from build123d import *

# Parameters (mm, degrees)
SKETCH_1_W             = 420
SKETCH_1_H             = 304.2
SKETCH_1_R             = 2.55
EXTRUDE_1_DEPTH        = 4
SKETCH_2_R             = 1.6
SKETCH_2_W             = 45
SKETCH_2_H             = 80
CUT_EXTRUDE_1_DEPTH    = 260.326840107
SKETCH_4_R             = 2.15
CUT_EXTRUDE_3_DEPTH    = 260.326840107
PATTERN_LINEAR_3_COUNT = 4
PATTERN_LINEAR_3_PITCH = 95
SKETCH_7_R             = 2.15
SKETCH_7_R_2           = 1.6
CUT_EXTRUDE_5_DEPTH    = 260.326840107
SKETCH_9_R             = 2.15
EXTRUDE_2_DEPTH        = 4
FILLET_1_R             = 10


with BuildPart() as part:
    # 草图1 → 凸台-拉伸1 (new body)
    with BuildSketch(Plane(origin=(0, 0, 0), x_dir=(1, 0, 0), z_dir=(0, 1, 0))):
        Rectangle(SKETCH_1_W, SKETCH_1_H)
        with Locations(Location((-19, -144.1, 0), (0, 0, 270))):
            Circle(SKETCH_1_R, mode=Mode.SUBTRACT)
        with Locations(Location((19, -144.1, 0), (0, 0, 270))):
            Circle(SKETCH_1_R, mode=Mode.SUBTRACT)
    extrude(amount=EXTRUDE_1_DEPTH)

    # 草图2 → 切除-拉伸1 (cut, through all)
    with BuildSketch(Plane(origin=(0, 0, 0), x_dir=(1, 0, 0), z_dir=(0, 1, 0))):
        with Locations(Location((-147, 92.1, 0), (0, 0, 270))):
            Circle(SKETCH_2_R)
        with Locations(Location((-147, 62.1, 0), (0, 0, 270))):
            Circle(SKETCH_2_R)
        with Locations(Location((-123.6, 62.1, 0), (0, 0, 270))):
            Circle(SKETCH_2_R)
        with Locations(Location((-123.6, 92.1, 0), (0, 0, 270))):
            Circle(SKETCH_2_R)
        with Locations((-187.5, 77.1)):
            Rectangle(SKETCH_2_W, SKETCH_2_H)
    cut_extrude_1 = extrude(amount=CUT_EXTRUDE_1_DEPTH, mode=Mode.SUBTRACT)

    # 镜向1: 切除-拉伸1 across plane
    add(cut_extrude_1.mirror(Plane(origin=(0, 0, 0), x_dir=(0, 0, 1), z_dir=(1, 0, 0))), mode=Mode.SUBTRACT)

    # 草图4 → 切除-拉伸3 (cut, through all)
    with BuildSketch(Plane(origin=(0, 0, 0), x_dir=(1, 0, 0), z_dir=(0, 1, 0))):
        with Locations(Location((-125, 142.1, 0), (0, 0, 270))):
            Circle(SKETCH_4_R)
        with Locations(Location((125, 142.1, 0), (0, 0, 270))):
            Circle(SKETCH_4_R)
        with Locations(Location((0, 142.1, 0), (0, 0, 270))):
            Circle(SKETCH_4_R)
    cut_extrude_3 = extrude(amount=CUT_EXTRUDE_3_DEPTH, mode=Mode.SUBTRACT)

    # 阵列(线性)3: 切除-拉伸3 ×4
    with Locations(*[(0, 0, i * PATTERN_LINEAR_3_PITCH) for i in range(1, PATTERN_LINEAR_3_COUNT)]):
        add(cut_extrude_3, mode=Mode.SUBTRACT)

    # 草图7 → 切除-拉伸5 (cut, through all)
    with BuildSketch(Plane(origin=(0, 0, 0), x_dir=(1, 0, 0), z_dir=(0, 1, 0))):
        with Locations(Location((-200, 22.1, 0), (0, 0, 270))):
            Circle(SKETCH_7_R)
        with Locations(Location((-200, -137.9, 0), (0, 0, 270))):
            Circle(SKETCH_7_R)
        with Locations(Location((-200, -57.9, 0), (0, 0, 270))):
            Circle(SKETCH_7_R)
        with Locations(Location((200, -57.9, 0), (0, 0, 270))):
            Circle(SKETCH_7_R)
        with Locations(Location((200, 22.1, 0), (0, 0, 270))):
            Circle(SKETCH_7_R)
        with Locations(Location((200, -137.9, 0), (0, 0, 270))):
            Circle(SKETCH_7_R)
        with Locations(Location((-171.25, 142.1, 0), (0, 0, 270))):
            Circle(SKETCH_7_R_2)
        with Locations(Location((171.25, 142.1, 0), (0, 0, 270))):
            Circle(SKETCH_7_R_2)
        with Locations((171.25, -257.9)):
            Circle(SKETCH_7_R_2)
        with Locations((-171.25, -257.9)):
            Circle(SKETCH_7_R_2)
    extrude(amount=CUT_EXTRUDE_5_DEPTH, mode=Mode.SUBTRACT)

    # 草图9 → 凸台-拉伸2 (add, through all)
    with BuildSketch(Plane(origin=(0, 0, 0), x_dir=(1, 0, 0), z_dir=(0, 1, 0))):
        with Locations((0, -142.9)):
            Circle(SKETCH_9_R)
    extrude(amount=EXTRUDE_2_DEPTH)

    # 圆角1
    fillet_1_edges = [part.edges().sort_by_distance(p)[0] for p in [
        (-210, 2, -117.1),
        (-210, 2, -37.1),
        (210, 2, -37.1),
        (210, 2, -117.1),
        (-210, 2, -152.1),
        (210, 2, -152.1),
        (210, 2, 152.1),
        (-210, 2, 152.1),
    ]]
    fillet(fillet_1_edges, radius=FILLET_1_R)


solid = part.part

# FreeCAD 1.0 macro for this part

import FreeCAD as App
import Part
import Sketcher
from FreeCAD import Vector
Q = App.Units.Quantity


def edges_at(feature, points):
    """Names of the edges that pass closest to the given points."""
    edges = feature.Shape.Edges
    near = lambda p: min(range(len(edges)), key=lambda i: edges[i].distToShape(Part.Vertex(*p))[0])
    return sorted({f"Edge{near(p) + 1}" for p in points})

doc = App.newDocument("Part")
params = doc.addObject("Spreadsheet::Sheet", "Params")
for row, (alias, value) in enumerate([
    ("sketch1_diameter", "5.1 mm"),
    ("sketch1_width", "420 mm"),
    ("sketch1_height", "304.2 mm"),
    ("pad1_length", "4 mm"),
    ("sketch2_diameter", "3.2 mm"),
    ("sketch2_width", "45 mm"),
    ("sketch2_height", "80 mm"),
    ("sketch3_diameter", "4.3 mm"),
    ("linearpattern_pitch", "95 mm"),
    ("sketch4_diameter", "4.3 mm"),
    ("sketch4_diameter2", "3.2 mm"),
    ("sketch5_diameter", "4.3 mm"),
    ("pad2_length", "4 mm"),
    ("fillet_radius", "10 mm"),
], start=1):
    params.set(f"A{row}", alias)
    params.set(f"B{row}", "=" + value)
    params.setAlias(f"B{row}", alias)

body = doc.addObject("PartDesign::Body", "Body")

# Sketch on XZ plane
sketch1 = doc.addObject("Sketcher::SketchObject", "Sketch")
body.addObject(sketch1)
sketch1.AttachmentSupport = (doc.XZ_Plane, [""])
sketch1.MapMode = "FlatFace"
sketch1.addGeometry([
    Part.LineSegment(Vector(-210, -152.1, 0), Vector(-210, 152.1, 0)),  # 0
    Part.LineSegment(Vector(-210, 152.1, 0), Vector(210, 152.1, 0)),  # 1
    Part.LineSegment(Vector(210, 152.1, 0), Vector(210, -152.1, 0)),  # 2
    Part.LineSegment(Vector(210, -152.1, 0), Vector(-210, -152.1, 0)),  # 3
    Part.Circle(Vector(-19, 144.1, 0), Vector(0, 0, 1), 2.5),  # 4
    Part.Circle(Vector(19, 144.1, 0), Vector(0, 0, 1), 2.5),  # 5
], False)
sketch1.addConstraint([
    Sketcher.Constraint("Coincident", 0, 2, 1, 1),
    Sketcher.Constraint("Coincident", 1, 2, 2, 1),
    Sketcher.Constraint("Coincident", 2, 2, 3, 1),
    Sketcher.Constraint("Coincident", 3, 2, 0, 1),
    Sketcher.Constraint("Vertical", 0),
    Sketcher.Constraint("Horizontal", 1),
    Sketcher.Constraint("Vertical", 2),
    Sketcher.Constraint("Horizontal", 3),
    Sketcher.Constraint("Equal", 4, 5),
    Sketcher.Constraint("Symmetric", 0, 2, 2, 2, -1, 1),
    Sketcher.Constraint("Symmetric", 4, 3, 5, 3, -2),
    Sketcher.Constraint("Diameter", 4, Q("5.1 mm")),
    Sketcher.Constraint("DistanceX", 1, 1, 1, 2, Q("420 mm")),
    Sketcher.Constraint("DistanceY", 0, 1, 0, 2, Q("304.2 mm")),
    Sketcher.Constraint("DistanceX", 4, 3, -1, 1, Q("19 mm")),
    Sketcher.Constraint("DistanceY", 4, 3, 0, 2, Q("8 mm")),
])
sketch1.setExpression("Constraints[11]", "Params.sketch1_diameter")
sketch1.setExpression("Constraints[12]", "Params.sketch1_width")
sketch1.setExpression("Constraints[13]", "Params.sketch1_height")
pad1 = doc.addObject("PartDesign::Pad", "Pad")
body.addObject(pad1)
pad1.Profile = sketch1
pad1.setExpression("Length", "Params.pad1_length")
pad1.Reversed = True

# Sketch on XZ plane
sketch2 = doc.addObject("Sketcher::SketchObject", "Sketch001")
body.addObject(sketch2)
sketch2.AttachmentSupport = (doc.XZ_Plane, [""])
sketch2.MapMode = "FlatFace"
sketch2.addGeometry([
    Part.Circle(Vector(-147, -92.1, 0), Vector(0, 0, 1), 1.6),  # 0
    Part.Circle(Vector(-147, -62.1, 0), Vector(0, 0, 1), 1.6),  # 1
    Part.Circle(Vector(-123.6, -62.1, 0), Vector(0, 0, 1), 1.6),  # 2
    Part.Circle(Vector(-123.6, -92.1, 0), Vector(0, 0, 1), 1.6),  # 3
    Part.LineSegment(Vector(-210, -117.1, 0), Vector(-210, -37.1, 0)),  # 4
    Part.LineSegment(Vector(-210, -37.1, 0), Vector(-165, -37.1, 0)),  # 5
    Part.LineSegment(Vector(-165, -37.1, 0), Vector(-165, -117.1, 0)),  # 6
    Part.LineSegment(Vector(-165, -117.1, 0), Vector(-210, -117.1, 0)),  # 7
], False)
sketch2.addConstraint([
    Sketcher.Constraint("Coincident", 4, 2, 5, 1),
    Sketcher.Constraint("Coincident", 5, 2, 6, 1),
    Sketcher.Constraint("Coincident", 6, 2, 7, 1),
    Sketcher.Constraint("Coincident", 7, 2, 4, 1),
    Sketcher.Constraint("Vertical", 4),
    Sketcher.Constraint("Horizontal", 5),
    Sketcher.Constraint("Vertical", 6),
    Sketcher.Constraint("Horizontal", 7),
    Sketcher.Constraint("Equal", 0, 1),
    Sketcher.Constraint("Equal", 1, 2),
    Sketcher.Constraint("Equal", 2, 3),
    Sketcher.Constraint("Horizontal", 1, 3, 2, 3),
    Sketcher.Constraint("Horizontal", 0, 3, 3, 3),
    Sketcher.Constraint("Vertical", 0, 3, 1, 3),
    Sketcher.Constraint("Vertical", 2, 3, 3, 3),
    Sketcher.Constraint("Diameter", 0, Q("3.2 mm")),
    Sketcher.Constraint("DistanceX", 5, 1, 5, 2, Q("45 mm")),
    Sketcher.Constraint("DistanceY", 4, 1, 4, 2, Q("80 mm")),
    Sketcher.Constraint("DistanceX", 0, 3, -1, 1, Q("147 mm")),
    Sketcher.Constraint("DistanceX", 4, 2, -1, 1, Q("210 mm")),
    Sketcher.Constraint("DistanceY", 0, 3, 1, 3, Q("30 mm")),
    Sketcher.Constraint("DistanceY", 1, 3, 4, 2, Q("25 mm")),
    Sketcher.Constraint("DistanceY", 0, 3, -1, 1, Q("92.1 mm")),
    Sketcher.Constraint("DistanceX", 2, 3, -1, 1, Q("123.6 mm")),
])
sketch2.setExpression("Constraints[15]", "Params.sketch2_diameter")
sketch2.setExpression("Constraints[16]", "Params.sketch2_width")
sketch2.setExpression("Constraints[17]", "Params.sketch2_height")
pocket1 = doc.addObject("PartDesign::Pocket", "Pocket")
body.addObject(pocket1)
pocket1.Profile = sketch2
pocket1.Type = "ThroughAll"
doc.recompute()

mirrored = doc.addObject("PartDesign::Mirrored", "Mirrored")
body.addObject(mirrored)
mirrored.Originals = [pocket1]
mirrored.MirrorPlane = (doc.YZ_Plane, [""])
body.Tip = mirrored

# Sketch on XZ plane
sketch3 = doc.addObject("Sketcher::SketchObject", "Sketch002")
body.addObject(sketch3)
sketch3.AttachmentSupport = (doc.XZ_Plane, [""])
sketch3.MapMode = "FlatFace"
sketch3.addGeometry([
    Part.Circle(Vector(-125, -142.1, 0), Vector(0, 0, 1), 2.1),
    Part.Circle(Vector(125, -142.1, 0), Vector(0, 0, 1), 2.1),
    Part.Circle(Vector(0, -142.1, 0), Vector(0, 0, 1), 2.1),
], False)
sketch3.addConstraint([
    Sketcher.Constraint("Equal", 0, 1),
    Sketcher.Constraint("Equal", 1, 2),
    Sketcher.Constraint("Symmetric", 0, 3, 1, 3, -2),
    Sketcher.Constraint("PointOnObject", 2, 3, -2),
    Sketcher.Constraint("Horizontal", 1, 3, 2, 3),
    Sketcher.Constraint("Diameter", 0, Q("4.3 mm")),
    Sketcher.Constraint("DistanceX", 0, 3, -1, 1, Q("125 mm")),
    Sketcher.Constraint("DistanceY", 0, 3, -1, 1, Q("142.1 mm")),
])
sketch3.setExpression("Constraints[5]", "Params.sketch3_diameter")
pocket2 = doc.addObject("PartDesign::Pocket", "Pocket001")
body.addObject(pocket2)
pocket2.Profile = sketch3
pocket2.Type = "ThroughAll"
doc.recompute()

linearpattern = doc.addObject("PartDesign::LinearPattern", "LinearPattern")
body.addObject(linearpattern)
linearpattern.Originals = [pocket2]
linearpattern.Direction = (doc.Z_Axis, [""])
linearpattern.Mode = "offset"
linearpattern.setExpression("Offset", "Params.linearpattern_pitch")
linearpattern.Occurrences = 4
body.Tip = linearpattern

# Sketch on XZ plane
sketch4 = doc.addObject("Sketcher::SketchObject", "Sketch003")
body.addObject(sketch4)
sketch4.AttachmentSupport = (doc.XZ_Plane, [""])
sketch4.MapMode = "FlatFace"
sketch4.addGeometry([
    Part.Circle(Vector(-200, -22.1, 0), Vector(0, 0, 1), 2.1),  # 0
    Part.Circle(Vector(-200, 137.9, 0), Vector(0, 0, 1), 2.1),  # 1
    Part.Circle(Vector(-200, 57.9, 0), Vector(0, 0, 1), 2.1),  # 2
    Part.Circle(Vector(200, 57.9, 0), Vector(0, 0, 1), 2.1),  # 3
    Part.Circle(Vector(200, -22.1, 0), Vector(0, 0, 1), 2.1),  # 4
    Part.Circle(Vector(200, 137.9, 0), Vector(0, 0, 1), 2.1),  # 5
    Part.Circle(Vector(-171.2, -142.1, 0), Vector(0, 0, 1), 1.6),  # 6
    Part.Circle(Vector(171.2, -142.1, 0), Vector(0, 0, 1), 1.6),  # 7
    Part.Circle(Vector(171.2, 257.9, 0), Vector(0, 0, 1), 1.6),  # 8
    Part.Circle(Vector(-171.2, 257.9, 0), Vector(0, 0, 1), 1.6),  # 9
], False)
sketch4.addConstraint([
    Sketcher.Constraint("Equal", 0, 1),
    Sketcher.Constraint("Equal", 1, 2),
    Sketcher.Constraint("Equal", 2, 3),
    Sketcher.Constraint("Equal", 3, 4),
    Sketcher.Constraint("Equal", 4, 5),
    Sketcher.Constraint("Equal", 6, 7),
    Sketcher.Constraint("Equal", 7, 8),
    Sketcher.Constraint("Equal", 8, 9),
    Sketcher.Constraint("Symmetric", 2, 3, 3, 3, -2),
    Sketcher.Constraint("Symmetric", 0, 3, 4, 3, -2),
    Sketcher.Constraint("Symmetric", 1, 3, 5, 3, -2),
    Sketcher.Constraint("Symmetric", 6, 3, 7, 3, -2),
    Sketcher.Constraint("Symmetric", 8, 3, 9, 3, -2),
    Sketcher.Constraint("Vertical", 0, 3, 1, 3),
    Sketcher.Constraint("Vertical", 1, 3, 2, 3),
    Sketcher.Constraint("Vertical", 7, 3, 8, 3),
    Sketcher.Constraint("Diameter", 0, Q("4.3 mm")),
    Sketcher.Constraint("Diameter", 6, Q("3.2 mm")),
    Sketcher.Constraint("DistanceX", 0, 3, -1, 1, Q("200 mm")),
    Sketcher.Constraint("DistanceY", 0, 3, 1, 3, Q("160 mm")),
    Sketcher.Constraint("DistanceY", 0, 3, 2, 3, Q("80 mm")),
    Sketcher.Constraint("DistanceY", 6, 3, 0, 3, Q("120 mm")),
    Sketcher.Constraint("DistanceY", 5, 3, 8, 3, Q("120 mm")),
    Sketcher.Constraint("DistanceY", 0, 3, -1, 1, Q("22.1 mm")),
    Sketcher.Constraint("DistanceX", 6, 3, 7, 3, Q("342.5 mm")),
])
sketch4.setExpression("Constraints[16]", "Params.sketch4_diameter")
sketch4.setExpression("Constraints[17]", "Params.sketch4_diameter2")
pocket3 = doc.addObject("PartDesign::Pocket", "Pocket002")
body.addObject(pocket3)
pocket3.Profile = sketch4
pocket3.Type = "ThroughAll"

# Sketch on XZ plane
sketch5 = doc.addObject("Sketcher::SketchObject", "Sketch004")
body.addObject(sketch5)
sketch5.AttachmentSupport = (doc.XZ_Plane, [""])
sketch5.MapMode = "FlatFace"
sketch5.addGeometry(Part.Circle(Vector(0, 142.9, 0), Vector(0, 0, 1), 2.1), False)
sketch5.addConstraint([
    Sketcher.Constraint("PointOnObject", 0, 3, -2),
    Sketcher.Constraint("Diameter", 0, Q("4.3 mm")),
    Sketcher.Constraint("DistanceY", -1, 1, 0, 3, Q("142.9 mm")),
])
sketch5.setExpression("Constraints[1]", "Params.sketch5_diameter")
pad2 = doc.addObject("PartDesign::Pad", "Pad001")
body.addObject(pad2)
pad2.Profile = sketch5
pad2.setExpression("Length", "Params.pad2_length")
pad2.Reversed = True
doc.recompute()

fillet = doc.addObject("PartDesign::Fillet", "Fillet")
body.addObject(fillet)
fillet.Base = (pad2, edges_at(pad2, [
    (-210, 2, -117.1),
    (-210, 2, -37.1),
    (210, 2, -37.1),
    (210, 2, -117.1),
    (-210, 2, -152.1),
    (210, 2, -152.1),
    (210, 2, 152.1),
    (-210, 2, 152.1),
]))
fillet.setExpression("Radius", "Params.fillet_radius")

doc.recompute()
